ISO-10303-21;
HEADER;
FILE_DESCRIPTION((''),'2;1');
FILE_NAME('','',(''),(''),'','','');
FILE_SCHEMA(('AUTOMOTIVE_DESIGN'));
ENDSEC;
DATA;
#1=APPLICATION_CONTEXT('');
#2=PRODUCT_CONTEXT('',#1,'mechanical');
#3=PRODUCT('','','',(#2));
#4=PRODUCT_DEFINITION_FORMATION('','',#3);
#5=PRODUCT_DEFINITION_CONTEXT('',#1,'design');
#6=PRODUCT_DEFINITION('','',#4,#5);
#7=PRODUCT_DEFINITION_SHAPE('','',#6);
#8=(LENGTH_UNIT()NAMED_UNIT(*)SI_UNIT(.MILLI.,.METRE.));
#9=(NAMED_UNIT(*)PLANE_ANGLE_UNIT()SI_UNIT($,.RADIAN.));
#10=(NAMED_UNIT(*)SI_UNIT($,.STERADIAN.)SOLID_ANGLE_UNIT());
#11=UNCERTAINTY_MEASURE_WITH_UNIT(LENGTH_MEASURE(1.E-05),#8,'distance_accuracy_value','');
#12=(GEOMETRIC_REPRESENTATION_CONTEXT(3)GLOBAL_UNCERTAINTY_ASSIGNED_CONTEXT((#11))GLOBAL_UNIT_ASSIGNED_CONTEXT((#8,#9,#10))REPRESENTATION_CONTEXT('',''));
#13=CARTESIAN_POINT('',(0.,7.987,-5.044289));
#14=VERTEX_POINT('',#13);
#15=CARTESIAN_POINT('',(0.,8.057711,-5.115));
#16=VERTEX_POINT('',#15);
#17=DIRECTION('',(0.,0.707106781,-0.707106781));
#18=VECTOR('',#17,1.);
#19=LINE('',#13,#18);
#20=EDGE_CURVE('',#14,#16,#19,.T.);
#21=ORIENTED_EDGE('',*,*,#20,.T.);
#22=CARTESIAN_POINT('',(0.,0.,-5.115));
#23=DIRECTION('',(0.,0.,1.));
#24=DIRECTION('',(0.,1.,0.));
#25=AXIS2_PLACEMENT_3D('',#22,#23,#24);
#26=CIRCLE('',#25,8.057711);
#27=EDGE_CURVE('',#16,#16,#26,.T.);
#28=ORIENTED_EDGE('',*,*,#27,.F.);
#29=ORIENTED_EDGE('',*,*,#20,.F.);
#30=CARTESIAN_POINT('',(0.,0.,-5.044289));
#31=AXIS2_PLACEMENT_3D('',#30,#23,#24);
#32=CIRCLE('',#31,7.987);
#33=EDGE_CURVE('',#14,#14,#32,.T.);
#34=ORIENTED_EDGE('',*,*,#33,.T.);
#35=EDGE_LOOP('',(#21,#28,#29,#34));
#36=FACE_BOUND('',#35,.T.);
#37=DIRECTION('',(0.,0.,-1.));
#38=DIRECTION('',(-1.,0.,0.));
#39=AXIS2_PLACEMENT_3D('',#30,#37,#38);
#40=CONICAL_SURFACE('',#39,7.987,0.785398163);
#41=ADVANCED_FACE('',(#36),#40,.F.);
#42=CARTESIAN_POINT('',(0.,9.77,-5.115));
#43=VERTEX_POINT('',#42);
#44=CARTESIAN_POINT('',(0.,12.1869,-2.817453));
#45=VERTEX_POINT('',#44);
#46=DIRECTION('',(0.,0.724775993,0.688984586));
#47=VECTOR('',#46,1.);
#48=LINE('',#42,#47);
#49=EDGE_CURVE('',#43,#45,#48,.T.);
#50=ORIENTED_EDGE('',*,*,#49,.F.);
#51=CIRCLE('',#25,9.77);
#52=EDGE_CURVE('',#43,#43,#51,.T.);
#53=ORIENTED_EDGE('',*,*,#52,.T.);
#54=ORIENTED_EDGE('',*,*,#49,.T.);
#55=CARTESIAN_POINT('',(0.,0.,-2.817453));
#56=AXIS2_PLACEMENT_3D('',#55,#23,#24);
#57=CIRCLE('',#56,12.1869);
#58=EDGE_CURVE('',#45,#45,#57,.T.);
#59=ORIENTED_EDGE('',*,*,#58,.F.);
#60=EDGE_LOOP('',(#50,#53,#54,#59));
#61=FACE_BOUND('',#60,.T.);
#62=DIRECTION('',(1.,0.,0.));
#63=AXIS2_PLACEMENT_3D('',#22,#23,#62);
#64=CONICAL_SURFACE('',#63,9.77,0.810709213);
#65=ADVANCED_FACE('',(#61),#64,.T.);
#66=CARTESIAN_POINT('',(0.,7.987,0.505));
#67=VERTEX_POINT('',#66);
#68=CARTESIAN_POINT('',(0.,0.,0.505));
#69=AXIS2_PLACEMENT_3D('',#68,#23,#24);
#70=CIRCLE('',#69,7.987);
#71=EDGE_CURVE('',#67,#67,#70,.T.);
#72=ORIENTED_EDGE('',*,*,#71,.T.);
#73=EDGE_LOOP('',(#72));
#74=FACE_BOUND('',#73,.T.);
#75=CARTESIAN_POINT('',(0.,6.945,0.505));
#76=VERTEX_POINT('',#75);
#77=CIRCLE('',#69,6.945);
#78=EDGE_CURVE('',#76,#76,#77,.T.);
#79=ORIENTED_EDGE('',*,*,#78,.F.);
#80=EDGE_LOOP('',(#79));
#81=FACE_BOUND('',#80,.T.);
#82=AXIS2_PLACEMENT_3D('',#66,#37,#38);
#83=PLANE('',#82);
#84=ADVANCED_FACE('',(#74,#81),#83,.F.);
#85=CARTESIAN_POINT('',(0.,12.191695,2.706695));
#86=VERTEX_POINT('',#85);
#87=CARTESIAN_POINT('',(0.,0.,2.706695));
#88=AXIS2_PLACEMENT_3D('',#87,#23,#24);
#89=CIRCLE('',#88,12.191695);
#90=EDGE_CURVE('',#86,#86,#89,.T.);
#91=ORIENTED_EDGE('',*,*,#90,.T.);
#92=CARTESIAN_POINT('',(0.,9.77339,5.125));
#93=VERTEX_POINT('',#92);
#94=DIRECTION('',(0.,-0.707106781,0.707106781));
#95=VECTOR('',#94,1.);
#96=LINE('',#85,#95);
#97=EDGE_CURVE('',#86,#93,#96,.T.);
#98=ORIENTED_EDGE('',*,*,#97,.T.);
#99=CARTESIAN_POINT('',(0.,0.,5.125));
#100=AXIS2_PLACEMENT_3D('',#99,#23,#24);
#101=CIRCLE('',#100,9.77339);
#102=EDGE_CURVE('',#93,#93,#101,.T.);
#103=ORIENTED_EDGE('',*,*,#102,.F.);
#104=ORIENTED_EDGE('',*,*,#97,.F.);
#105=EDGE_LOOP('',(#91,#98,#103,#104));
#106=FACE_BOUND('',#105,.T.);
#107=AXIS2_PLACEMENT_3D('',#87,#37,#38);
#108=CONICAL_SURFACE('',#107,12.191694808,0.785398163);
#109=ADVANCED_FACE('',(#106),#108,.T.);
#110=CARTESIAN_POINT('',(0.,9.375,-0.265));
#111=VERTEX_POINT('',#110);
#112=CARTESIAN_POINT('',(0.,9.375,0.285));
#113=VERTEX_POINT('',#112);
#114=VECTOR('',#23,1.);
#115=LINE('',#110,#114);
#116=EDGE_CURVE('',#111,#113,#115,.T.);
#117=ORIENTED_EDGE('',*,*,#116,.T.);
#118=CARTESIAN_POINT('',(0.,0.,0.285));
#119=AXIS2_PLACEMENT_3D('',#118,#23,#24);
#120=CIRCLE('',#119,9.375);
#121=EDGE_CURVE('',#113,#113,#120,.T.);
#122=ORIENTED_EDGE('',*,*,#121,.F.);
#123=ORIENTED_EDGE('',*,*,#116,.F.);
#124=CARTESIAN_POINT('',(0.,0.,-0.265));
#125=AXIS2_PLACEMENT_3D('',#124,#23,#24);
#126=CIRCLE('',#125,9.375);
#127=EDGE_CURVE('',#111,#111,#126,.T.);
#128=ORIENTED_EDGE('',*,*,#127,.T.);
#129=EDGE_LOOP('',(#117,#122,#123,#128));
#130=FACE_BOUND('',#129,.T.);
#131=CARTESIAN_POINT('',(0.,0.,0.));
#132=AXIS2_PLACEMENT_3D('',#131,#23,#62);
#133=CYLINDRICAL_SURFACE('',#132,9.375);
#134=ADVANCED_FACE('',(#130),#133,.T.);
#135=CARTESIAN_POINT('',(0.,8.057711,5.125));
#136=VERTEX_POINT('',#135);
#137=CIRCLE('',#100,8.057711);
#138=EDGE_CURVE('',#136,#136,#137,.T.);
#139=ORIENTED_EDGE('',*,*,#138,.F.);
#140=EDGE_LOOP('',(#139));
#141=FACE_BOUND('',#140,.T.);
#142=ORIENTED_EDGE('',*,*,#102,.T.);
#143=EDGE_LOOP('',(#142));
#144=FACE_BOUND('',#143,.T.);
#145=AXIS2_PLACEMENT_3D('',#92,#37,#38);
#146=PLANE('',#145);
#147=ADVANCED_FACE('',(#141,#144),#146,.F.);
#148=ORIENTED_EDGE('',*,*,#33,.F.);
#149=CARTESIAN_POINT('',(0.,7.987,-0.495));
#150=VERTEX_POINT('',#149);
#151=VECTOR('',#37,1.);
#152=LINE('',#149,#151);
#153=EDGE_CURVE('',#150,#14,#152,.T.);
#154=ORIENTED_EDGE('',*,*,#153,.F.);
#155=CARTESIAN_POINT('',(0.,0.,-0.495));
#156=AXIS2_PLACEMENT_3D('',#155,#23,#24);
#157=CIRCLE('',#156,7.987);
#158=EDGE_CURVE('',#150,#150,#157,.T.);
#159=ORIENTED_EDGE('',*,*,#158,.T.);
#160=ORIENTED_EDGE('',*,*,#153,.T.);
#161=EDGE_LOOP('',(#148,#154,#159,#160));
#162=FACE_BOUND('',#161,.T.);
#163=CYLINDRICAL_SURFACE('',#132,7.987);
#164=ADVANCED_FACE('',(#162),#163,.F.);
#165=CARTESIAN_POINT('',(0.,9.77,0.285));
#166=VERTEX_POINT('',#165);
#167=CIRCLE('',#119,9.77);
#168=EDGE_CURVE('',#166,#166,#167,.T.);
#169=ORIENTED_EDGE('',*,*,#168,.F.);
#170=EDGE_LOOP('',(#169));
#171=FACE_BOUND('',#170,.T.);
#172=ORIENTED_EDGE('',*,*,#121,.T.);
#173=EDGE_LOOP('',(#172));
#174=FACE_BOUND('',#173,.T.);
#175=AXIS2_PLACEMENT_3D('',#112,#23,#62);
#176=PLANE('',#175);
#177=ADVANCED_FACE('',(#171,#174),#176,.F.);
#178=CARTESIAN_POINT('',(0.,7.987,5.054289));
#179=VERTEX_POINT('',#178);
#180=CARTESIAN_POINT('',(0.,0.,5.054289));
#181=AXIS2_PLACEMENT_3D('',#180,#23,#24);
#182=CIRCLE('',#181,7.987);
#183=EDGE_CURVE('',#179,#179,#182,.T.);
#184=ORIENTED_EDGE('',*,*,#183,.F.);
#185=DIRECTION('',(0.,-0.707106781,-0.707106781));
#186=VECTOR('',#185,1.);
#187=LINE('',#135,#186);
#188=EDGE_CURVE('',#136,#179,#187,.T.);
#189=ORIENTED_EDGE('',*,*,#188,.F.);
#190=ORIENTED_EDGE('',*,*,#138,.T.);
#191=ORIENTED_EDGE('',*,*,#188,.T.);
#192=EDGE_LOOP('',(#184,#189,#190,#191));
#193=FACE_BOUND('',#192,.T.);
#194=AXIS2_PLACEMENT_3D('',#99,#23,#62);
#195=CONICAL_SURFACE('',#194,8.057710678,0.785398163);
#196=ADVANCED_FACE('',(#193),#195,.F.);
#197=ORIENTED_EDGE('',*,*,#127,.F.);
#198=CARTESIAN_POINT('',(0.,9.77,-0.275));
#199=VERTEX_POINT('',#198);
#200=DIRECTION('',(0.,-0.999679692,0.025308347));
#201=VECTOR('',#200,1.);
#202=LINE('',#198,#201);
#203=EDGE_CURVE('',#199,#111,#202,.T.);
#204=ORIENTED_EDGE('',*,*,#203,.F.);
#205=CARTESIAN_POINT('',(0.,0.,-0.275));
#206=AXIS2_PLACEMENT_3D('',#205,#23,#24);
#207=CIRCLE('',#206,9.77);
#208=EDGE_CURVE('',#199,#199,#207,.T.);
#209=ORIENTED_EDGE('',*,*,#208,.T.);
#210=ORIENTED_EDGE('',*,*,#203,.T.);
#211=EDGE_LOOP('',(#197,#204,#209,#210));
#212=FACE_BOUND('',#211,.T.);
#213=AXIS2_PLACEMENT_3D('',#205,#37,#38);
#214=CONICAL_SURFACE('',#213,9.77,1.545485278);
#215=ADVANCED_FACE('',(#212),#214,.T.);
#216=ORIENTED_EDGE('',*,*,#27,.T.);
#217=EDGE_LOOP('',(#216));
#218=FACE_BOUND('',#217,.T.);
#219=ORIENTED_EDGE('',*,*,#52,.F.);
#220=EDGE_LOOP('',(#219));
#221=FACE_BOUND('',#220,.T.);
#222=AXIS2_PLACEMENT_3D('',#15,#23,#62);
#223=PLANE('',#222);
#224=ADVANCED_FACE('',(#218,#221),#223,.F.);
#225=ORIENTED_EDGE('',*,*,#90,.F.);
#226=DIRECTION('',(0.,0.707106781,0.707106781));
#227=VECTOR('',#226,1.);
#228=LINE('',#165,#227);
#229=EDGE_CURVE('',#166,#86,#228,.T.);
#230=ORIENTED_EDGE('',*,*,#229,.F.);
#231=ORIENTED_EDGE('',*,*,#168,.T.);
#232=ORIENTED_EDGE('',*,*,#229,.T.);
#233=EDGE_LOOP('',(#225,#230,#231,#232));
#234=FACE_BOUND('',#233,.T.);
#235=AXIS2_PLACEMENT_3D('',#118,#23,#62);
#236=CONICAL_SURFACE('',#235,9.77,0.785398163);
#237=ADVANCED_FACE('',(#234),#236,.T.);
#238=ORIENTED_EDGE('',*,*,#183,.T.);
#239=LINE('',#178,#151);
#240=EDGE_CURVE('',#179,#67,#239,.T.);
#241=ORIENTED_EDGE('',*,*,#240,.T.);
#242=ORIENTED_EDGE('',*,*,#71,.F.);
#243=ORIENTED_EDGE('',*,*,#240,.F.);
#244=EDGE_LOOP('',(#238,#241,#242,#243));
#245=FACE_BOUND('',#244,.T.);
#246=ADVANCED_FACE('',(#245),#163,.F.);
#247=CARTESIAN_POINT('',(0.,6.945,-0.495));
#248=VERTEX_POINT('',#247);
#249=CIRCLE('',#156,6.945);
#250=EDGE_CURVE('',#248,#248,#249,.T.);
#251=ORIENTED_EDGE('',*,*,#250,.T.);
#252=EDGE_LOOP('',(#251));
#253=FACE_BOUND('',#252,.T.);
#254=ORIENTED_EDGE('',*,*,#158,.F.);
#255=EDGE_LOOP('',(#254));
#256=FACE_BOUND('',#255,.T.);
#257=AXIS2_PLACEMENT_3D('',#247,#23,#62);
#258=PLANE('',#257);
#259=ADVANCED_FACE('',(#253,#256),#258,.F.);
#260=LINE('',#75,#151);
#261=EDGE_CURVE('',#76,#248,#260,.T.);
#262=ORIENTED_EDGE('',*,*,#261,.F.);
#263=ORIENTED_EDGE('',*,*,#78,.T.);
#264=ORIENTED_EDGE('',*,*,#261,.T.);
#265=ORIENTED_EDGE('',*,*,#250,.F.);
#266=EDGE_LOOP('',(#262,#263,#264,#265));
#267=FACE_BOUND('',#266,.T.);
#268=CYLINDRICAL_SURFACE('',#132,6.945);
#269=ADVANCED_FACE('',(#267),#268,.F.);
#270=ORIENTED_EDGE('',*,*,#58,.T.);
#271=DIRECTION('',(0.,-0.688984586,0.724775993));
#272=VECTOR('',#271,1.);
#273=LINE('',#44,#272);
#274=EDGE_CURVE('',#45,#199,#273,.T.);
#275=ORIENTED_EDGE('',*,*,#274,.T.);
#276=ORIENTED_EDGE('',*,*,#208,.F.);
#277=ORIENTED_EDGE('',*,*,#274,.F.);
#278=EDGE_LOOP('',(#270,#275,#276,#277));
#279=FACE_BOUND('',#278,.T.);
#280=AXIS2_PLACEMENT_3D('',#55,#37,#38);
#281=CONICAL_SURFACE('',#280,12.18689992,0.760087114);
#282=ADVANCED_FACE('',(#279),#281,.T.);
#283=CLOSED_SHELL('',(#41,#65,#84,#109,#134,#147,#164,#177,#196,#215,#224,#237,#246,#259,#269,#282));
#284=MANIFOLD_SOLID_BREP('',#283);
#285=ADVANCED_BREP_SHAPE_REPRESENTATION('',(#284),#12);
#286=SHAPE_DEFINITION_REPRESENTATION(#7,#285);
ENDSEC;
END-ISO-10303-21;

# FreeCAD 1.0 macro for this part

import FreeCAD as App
import Part
import Sketcher
from FreeCAD import Vector

doc = App.newDocument("Part")
body = doc.addObject("PartDesign::Body", "Body")

sketch1 = body.newObject("Sketcher::SketchObject", "Sketch")
sketch1.AttachmentSupport = (doc.getObject("YZ_Plane"), [""])
sketch1.MapMode = "FlatFace"
sketch1.addGeometry(Part.LineSegment(Vector(6.945, 0.505, 0), Vector(6.945, -0.495, 0)), False)
sketch1.addGeometry(Part.LineSegment(Vector(6.945, -0.495, 0), Vector(7.987, -0.495, 0)), False)
sketch1.addGeometry(Part.LineSegment(Vector(7.987, -0.495, 0), Vector(7.987, -5.044289, 0)), False)
sketch1.addGeometry(Part.LineSegment(Vector(7.987, -5.044289, 0), Vector(8.057711, -5.115, 0)), False)
sketch1.addGeometry(Part.LineSegment(Vector(8.057711, -5.115, 0), Vector(9.77, -5.115, 0)), False)
sketch1.addGeometry(Part.LineSegment(Vector(9.77, -5.115, 0), Vector(12.1869, -2.817453, 0)), False)
sketch1.addGeometry(Part.LineSegment(Vector(12.1869, -2.817453, 0), Vector(9.77, -0.275, 0)), False)
sketch1.addGeometry(Part.LineSegment(Vector(9.77, -0.275, 0), Vector(9.375, -0.265, 0)), False)
sketch1.addGeometry(Part.LineSegment(Vector(9.375, -0.265, 0), Vector(9.375, 0.285, 0)), False)
sketch1.addGeometry(Part.LineSegment(Vector(9.375, 0.285, 0), Vector(9.77, 0.285, 0)), False)
sketch1.addGeometry(Part.LineSegment(Vector(9.77, 0.285, 0), Vector(12.191695, 2.706695, 0)), False)
sketch1.addGeometry(Part.LineSegment(Vector(12.191695, 2.706695, 0), Vector(9.77339, 5.125, 0)), False)
sketch1.addGeometry(Part.LineSegment(Vector(9.77339, 5.125, 0), Vector(8.057711, 5.125, 0)), False)
sketch1.addGeometry(Part.LineSegment(Vector(8.057711, 5.125, 0), Vector(7.987, 5.054289, 0)), False)
sketch1.addGeometry(Part.LineSegment(Vector(7.987, 5.054289, 0), Vector(7.987, 0.505, 0)), False)
sketch1.addGeometry(Part.LineSegment(Vector(7.987, 0.505, 0), Vector(6.945, 0.505, 0)), False)
sketch1.addConstraint(Sketcher.Constraint("Coincident", 0, 2, 1, 1))
sketch1.addConstraint(Sketcher.Constraint("Coincident", 1, 2, 2, 1))
sketch1.addConstraint(Sketcher.Constraint("Coincident", 2, 2, 3, 1))
sketch1.addConstraint(Sketcher.Constraint("Coincident", 3, 2, 4, 1))
sketch1.addConstraint(Sketcher.Constraint("Coincident", 4, 2, 5, 1))
sketch1.addConstraint(Sketcher.Constraint("Coincident", 5, 2, 6, 1))
sketch1.addConstraint(Sketcher.Constraint("Coincident", 6, 2, 7, 1))
sketch1.addConstraint(Sketcher.Constraint("Coincident", 7, 2, 8, 1))
sketch1.addConstraint(Sketcher.Constraint("Coincident", 8, 2, 9, 1))
sketch1.addConstraint(Sketcher.Constraint("Coincident", 9, 2, 10, 1))
sketch1.addConstraint(Sketcher.Constraint("Coincident", 10, 2, 11, 1))
sketch1.addConstraint(Sketcher.Constraint("Coincident", 11, 2, 12, 1))
sketch1.addConstraint(Sketcher.Constraint("Coincident", 12, 2, 13, 1))
sketch1.addConstraint(Sketcher.Constraint("Coincident", 13, 2, 14, 1))
sketch1.addConstraint(Sketcher.Constraint("Coincident", 14, 2, 15, 1))
sketch1.addConstraint(Sketcher.Constraint("Coincident", 15, 2, 0, 1))
sketch1.addConstraint(Sketcher.Constraint("Vertical", 0))
sketch1.addConstraint(Sketcher.Constraint("Horizontal", 1))
sketch1.addConstraint(Sketcher.Constraint("Vertical", 2))
sketch1.addConstraint(Sketcher.Constraint("Horizontal", 4))
sketch1.addConstraint(Sketcher.Constraint("Vertical", 8))
sketch1.addConstraint(Sketcher.Constraint("Horizontal", 9))
sketch1.addConstraint(Sketcher.Constraint("Horizontal", 12))
sketch1.addConstraint(Sketcher.Constraint("Vertical", 14))
sketch1.addConstraint(Sketcher.Constraint("Horizontal", 15))
sketch1.addConstraint(Sketcher.Constraint("Perpendicular", 5, 6))
sketch1.addConstraint(Sketcher.Constraint("Perpendicular", 3, 10))
sketch1.addConstraint(Sketcher.Constraint("Perpendicular", 10, 11))
sketch1.addConstraint(Sketcher.Constraint("Perpendicular", 11, 13))
sketch1.addConstraint(Sketcher.Constraint("Vertical", 4, 2, 6, 2))
sketch1.addConstraint(Sketcher.Constraint("Vertical", 6, 2, 9, 2))
sketch1.addConstraint(Sketcher.Constraint("Vertical", 3, 2, 12, 2))
sketch1.addConstraint(Sketcher.Constraint("Vertical", 2, 2, 13, 2))
sketch1.addConstraint(Sketcher.Constraint("Equal", 2, 14))
sketch1.addConstraint(Sketcher.Constraint("Equal", 3, 13))
sketch1.addConstraint(Sketcher.Constraint("DistanceY", 0, 2, 0, 1, 1.0))
sketch1.addConstraint(Sketcher.Constraint("Distance", 3, 0.1))
sketch1.addConstraint(Sketcher.Constraint("DistanceY", 8, 1, 8, 2, 0.55))
sketch1.addConstraint(Sketcher.Constraint("DistanceY", 6, 2, 11, 2, 5.4))
sketch1.addConstraint(Sketcher.Constraint("Distance", 11, 3.42))
sketch1.addConstraint(Sketcher.Constraint("DistanceX", 1, 1, 1, 2, 1.042))
sketch1.addConstraint(Sketcher.Constraint("DistanceX", 9, 1, 9, 2, 0.395))
sketch1.addConstraint(Sketcher.Constraint("DistanceX", -1, 1, 4, 2, 9.77))
sketch1.addConstraint(Sketcher.Constraint("DistanceY", 3, 2, 1, 2, 4.62))
sketch1.addConstraint(Sketcher.Constraint("DistanceY", 6, 2, 7, 2, 0.01))
sketch1.addConstraint(Sketcher.Constraint("DistanceX", 0, 2, 7, 2, 2.43))
sketch1.addConstraint(Sketcher.Constraint("DistanceY", 0, 2, -1, 1, 0.495))
sketch1.addConstraint(Sketcher.Constraint("DistanceX", -1, 1, 5, 2, 12.1869))

sketch2 = body.newObject("Sketcher::SketchObject", "Sketch001")
sketch2.AttachmentSupport = (doc.getObject("XY_Plane"), [""])
sketch2.MapMode = "FlatFace"
sketch2.addGeometry(Part.Circle(Vector(0, 0, 0), Vector(0, 0, 1), 2.5), False)
sketch2.addConstraint(Sketcher.Constraint("Coincident", 0, 3, -1, 1))
sketch2.addConstraint(Sketcher.Constraint("Diameter", 0, 5.0))
doc.recompute()

additivepipe = body.newObject("PartDesign::AdditivePipe", "AdditivePipe")
additivepipe.Profile = sketch1
additivepipe.Spine = (sketch2, ["Edge1"])

doc.recompute()
